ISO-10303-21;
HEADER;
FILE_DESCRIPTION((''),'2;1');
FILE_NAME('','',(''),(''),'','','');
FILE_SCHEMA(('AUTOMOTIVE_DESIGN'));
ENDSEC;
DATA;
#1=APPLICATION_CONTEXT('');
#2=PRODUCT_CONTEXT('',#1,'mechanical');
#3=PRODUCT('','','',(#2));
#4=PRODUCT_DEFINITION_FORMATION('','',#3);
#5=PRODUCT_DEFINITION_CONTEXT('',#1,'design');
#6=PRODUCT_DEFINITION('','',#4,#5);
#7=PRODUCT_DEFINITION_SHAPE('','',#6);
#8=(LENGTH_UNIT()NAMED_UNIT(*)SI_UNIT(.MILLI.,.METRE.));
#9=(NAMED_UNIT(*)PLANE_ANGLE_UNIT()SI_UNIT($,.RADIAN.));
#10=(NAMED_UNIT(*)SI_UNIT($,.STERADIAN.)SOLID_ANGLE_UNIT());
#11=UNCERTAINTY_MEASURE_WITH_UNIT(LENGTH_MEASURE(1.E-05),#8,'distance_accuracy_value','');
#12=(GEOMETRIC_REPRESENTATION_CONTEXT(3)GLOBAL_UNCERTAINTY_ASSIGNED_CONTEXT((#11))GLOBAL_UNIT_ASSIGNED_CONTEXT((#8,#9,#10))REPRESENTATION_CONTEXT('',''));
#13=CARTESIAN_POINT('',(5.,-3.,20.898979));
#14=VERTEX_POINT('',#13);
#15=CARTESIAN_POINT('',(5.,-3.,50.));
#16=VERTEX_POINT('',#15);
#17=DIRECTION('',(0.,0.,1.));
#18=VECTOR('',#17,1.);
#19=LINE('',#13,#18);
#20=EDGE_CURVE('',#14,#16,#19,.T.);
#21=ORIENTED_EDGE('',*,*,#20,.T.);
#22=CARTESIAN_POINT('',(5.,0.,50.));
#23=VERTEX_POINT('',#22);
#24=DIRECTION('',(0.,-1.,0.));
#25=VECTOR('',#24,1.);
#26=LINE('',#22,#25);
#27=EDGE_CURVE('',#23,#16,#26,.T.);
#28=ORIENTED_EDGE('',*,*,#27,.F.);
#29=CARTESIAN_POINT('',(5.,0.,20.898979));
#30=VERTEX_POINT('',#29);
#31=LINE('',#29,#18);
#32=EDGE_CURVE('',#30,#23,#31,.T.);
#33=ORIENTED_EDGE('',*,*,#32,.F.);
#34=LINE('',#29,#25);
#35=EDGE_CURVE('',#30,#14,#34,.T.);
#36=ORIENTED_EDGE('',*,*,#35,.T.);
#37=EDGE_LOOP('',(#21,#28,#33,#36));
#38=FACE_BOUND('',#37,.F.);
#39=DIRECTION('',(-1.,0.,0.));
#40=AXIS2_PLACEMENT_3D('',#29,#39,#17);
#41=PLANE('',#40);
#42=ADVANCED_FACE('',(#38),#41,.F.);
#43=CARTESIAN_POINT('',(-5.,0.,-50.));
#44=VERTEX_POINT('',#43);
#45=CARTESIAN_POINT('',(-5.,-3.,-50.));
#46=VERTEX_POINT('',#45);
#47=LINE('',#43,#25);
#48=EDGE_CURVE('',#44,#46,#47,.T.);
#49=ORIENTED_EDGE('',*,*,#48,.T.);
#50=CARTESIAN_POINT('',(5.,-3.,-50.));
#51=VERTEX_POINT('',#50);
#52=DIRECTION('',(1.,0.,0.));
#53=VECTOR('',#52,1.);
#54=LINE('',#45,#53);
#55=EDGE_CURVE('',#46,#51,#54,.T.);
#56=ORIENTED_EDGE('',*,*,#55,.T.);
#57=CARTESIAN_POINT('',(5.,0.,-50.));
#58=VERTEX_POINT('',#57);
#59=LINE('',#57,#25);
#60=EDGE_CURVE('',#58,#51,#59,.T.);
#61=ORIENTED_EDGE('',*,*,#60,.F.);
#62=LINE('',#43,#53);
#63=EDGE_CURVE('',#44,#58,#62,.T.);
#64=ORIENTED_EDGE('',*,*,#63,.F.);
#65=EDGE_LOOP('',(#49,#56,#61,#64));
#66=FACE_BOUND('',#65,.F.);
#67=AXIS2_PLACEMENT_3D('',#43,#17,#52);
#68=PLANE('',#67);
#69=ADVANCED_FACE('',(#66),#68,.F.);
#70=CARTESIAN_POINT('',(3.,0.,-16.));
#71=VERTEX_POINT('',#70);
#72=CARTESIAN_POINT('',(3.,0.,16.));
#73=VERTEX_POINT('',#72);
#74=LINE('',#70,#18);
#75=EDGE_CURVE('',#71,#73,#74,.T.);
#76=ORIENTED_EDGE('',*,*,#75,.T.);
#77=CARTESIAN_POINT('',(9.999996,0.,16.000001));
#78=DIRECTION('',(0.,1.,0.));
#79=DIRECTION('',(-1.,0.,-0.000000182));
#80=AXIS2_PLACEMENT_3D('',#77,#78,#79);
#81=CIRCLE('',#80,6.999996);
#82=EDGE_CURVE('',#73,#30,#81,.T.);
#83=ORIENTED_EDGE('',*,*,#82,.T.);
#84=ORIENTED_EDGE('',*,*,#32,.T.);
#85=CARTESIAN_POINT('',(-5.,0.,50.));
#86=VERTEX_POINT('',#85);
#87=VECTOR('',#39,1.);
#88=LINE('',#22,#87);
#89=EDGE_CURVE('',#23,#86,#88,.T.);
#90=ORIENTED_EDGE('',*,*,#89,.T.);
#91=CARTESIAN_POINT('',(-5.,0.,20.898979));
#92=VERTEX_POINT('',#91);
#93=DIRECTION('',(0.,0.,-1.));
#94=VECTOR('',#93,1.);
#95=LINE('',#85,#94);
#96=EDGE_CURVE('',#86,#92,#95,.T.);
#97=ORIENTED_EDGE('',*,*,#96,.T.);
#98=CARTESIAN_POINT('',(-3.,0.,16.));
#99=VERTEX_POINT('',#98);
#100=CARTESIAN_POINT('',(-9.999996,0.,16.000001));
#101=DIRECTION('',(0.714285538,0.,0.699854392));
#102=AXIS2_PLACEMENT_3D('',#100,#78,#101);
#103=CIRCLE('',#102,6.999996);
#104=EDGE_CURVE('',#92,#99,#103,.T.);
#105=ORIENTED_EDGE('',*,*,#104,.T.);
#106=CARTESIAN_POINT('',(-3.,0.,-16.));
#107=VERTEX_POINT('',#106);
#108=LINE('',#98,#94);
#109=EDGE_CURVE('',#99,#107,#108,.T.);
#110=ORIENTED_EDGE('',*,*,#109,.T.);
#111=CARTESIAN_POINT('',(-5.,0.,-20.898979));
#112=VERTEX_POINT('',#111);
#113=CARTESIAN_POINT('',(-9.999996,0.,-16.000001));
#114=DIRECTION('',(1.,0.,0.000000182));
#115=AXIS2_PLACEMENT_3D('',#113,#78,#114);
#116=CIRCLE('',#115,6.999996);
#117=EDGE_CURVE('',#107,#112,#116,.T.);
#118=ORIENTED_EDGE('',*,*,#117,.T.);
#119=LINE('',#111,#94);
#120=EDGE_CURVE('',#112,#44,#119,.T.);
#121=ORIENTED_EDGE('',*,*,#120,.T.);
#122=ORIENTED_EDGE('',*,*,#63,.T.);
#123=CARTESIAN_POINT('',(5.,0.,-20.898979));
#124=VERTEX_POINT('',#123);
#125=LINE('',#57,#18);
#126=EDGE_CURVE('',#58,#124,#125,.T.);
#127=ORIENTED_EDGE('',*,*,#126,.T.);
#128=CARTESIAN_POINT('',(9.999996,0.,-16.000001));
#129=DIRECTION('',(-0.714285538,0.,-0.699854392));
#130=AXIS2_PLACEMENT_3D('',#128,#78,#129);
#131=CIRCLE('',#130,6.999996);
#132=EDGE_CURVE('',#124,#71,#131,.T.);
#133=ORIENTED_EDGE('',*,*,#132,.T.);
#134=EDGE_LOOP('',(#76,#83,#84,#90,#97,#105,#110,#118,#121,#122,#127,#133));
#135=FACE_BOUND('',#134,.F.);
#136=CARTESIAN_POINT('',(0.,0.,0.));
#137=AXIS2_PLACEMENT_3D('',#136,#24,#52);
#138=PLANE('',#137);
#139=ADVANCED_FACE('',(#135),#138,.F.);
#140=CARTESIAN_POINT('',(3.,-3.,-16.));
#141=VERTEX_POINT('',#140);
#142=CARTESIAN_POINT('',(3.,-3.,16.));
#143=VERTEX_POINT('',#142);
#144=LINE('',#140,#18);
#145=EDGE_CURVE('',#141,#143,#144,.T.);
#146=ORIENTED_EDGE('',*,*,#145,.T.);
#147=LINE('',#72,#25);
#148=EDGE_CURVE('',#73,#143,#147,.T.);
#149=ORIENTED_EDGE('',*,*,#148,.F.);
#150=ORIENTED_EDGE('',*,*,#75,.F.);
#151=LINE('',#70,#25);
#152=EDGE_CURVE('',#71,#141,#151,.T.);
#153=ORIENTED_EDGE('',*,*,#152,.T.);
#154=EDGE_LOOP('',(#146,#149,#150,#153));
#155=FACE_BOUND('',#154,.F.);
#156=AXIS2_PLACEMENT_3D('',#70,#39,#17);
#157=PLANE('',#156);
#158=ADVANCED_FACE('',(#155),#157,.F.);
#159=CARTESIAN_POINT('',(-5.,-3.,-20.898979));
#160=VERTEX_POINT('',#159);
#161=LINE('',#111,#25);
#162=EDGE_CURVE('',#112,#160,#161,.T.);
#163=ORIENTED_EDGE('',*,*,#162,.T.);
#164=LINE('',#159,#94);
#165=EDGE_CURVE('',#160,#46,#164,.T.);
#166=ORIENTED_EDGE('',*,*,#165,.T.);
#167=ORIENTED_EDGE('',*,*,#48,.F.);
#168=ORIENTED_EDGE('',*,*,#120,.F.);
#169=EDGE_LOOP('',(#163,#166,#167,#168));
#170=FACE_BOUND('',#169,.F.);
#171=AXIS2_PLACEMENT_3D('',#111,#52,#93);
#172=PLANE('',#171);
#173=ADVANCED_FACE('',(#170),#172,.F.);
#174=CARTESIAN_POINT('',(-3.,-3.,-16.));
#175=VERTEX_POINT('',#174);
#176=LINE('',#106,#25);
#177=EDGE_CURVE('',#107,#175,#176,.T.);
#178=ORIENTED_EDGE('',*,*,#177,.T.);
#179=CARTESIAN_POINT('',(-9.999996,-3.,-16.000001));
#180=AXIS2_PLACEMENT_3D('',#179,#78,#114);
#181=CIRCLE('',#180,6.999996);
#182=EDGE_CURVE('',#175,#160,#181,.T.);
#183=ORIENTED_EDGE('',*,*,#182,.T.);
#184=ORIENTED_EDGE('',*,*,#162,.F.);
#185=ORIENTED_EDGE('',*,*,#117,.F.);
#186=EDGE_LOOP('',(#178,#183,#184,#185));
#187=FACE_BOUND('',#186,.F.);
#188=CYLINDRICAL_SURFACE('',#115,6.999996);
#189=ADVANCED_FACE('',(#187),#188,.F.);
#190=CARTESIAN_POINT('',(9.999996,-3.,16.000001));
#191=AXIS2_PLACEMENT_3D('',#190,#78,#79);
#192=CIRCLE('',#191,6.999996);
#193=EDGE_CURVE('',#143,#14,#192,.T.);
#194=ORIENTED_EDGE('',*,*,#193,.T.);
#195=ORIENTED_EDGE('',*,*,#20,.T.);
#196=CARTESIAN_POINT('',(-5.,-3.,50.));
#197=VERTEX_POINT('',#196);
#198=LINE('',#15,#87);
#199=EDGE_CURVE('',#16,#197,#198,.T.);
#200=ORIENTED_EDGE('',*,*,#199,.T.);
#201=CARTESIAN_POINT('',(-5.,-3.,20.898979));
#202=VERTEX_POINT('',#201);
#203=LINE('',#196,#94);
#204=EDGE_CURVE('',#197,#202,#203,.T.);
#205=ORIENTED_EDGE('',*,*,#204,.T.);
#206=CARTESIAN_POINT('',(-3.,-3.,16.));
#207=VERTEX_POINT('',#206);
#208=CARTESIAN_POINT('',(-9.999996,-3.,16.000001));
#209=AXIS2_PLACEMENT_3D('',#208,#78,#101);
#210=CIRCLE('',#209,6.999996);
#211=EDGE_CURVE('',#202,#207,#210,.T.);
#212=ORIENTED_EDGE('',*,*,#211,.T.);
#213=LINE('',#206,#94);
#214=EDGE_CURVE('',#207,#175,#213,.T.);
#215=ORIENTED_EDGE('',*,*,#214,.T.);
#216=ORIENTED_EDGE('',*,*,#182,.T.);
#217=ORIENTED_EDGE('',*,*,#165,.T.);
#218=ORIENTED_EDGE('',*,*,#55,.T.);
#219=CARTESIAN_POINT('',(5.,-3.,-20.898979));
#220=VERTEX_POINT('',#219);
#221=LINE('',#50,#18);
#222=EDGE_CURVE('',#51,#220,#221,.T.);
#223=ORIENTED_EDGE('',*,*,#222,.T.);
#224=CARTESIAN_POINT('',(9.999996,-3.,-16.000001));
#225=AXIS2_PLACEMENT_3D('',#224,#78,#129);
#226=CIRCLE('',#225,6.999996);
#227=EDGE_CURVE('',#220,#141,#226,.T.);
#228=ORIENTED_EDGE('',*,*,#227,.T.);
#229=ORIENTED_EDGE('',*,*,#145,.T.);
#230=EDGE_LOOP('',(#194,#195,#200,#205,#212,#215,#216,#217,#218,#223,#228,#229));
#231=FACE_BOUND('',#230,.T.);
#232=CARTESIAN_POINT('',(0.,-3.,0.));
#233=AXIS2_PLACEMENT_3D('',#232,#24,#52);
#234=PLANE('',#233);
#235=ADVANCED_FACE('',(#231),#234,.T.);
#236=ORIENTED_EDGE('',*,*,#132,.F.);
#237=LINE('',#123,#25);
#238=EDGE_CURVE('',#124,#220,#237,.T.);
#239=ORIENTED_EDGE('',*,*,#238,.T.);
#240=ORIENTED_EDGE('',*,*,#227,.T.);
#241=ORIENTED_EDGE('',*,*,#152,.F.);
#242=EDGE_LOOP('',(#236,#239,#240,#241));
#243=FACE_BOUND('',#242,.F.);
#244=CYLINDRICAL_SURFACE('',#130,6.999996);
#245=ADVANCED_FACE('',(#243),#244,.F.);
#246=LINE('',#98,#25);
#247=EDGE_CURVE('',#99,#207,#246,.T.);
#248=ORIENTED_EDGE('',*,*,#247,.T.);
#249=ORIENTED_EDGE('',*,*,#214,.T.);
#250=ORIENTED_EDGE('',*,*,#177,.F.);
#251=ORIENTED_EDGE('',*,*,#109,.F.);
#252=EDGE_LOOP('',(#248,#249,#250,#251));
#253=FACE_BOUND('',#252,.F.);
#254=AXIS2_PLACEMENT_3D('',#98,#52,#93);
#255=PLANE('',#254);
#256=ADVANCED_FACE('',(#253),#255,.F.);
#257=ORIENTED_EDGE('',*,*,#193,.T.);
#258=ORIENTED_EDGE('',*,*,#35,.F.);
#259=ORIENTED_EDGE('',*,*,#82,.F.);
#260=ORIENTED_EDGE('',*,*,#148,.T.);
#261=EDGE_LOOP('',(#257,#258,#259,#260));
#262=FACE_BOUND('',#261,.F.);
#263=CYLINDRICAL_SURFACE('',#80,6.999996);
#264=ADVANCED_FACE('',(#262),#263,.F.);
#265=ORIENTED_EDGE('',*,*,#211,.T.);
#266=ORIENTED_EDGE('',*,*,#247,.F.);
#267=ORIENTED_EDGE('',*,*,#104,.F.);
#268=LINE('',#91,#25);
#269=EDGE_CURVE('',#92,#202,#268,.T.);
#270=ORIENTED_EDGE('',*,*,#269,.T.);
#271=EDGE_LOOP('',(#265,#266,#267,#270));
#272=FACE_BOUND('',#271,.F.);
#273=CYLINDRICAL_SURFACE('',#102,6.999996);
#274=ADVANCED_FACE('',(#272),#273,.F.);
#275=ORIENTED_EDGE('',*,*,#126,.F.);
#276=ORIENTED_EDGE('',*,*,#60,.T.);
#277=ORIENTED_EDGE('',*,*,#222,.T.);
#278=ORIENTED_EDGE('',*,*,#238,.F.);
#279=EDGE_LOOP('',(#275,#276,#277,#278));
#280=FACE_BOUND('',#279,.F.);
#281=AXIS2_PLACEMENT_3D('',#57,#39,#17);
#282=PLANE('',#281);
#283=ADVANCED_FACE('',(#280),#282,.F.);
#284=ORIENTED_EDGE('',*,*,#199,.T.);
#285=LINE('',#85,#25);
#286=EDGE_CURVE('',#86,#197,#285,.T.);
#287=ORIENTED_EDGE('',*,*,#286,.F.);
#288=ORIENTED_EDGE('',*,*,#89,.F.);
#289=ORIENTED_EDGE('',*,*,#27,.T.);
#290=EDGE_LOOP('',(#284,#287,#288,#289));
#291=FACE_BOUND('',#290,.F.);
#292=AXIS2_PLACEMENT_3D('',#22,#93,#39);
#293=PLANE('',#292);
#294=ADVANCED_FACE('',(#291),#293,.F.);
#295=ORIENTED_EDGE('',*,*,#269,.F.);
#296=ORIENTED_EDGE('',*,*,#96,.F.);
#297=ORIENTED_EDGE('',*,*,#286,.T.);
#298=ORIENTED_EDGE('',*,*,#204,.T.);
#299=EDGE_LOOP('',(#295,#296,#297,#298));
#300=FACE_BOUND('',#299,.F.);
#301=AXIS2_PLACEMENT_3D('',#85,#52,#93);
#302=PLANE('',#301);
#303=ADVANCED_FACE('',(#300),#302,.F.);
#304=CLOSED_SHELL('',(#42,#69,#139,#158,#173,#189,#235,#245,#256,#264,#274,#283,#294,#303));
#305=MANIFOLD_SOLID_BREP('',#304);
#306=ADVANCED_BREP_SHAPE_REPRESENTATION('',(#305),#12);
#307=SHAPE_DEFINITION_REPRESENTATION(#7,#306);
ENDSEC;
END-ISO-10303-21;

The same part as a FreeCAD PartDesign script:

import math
import FreeCAD as App
import Part
import Sketcher
from FreeCAD import Vector
Q = App.Units.Quantity

doc = App.newDocument("Part")
params = doc.addObject("Spreadsheet::Sheet", "Params")
for row, (alias, value) in enumerate([
    ("sketch1_width", "10 mm"),
    ("sketch1_height", "32 mm"),
    ("pad1_length", "3 mm"),
], start=1):
    params.set(f"A{row}", alias)
    params.set(f"B{row}", "=" + value)
    params.setAlias(f"B{row}", alias)

body = doc.addObject("PartDesign::Body", "Body")

# Sketch on XZ plane
sketch1 = body.newObject("Sketcher::SketchObject", "Sketch")
sketch1.AttachmentSupport = (doc.getObject("XZ_Plane"), [""])
sketch1.MapMode = "FlatFace"
sketch1.addGeometry(Part.LineSegment(Vector(3, -16, 0), Vector(3, 16, 0)), False)
sketch1.addGeometry(Part.ArcOfCircle(Part.Circle(Vector(10, 16, 0), Vector(0, 0, 1), 7), math.radians(136), math.radians(180)), False)
sketch1.addGeometry(Part.LineSegment(Vector(5, 21, 0), Vector(5, 50, 0)), False)
sketch1.addGeometry(Part.LineSegment(Vector(5, 50, 0), Vector(-5, 50, 0)), False)
sketch1.addGeometry(Part.LineSegment(Vector(-5, 50, 0), Vector(-5, 21, 0)), False)
sketch1.addGeometry(Part.ArcOfCircle(Part.Circle(Vector(-10, 16, 0), Vector(0, 0, 1), 7), math.radians(0), math.radians(44)), False)
sketch1.addGeometry(Part.LineSegment(Vector(-3, 16, 0), Vector(-3, -16, 0)), False)
sketch1.addGeometry(Part.ArcOfCircle(Part.Circle(Vector(-10, -16, 0), Vector(0, 0, 1), 7), math.radians(-44), math.radians(0)), False)
sketch1.addGeometry(Part.LineSegment(Vector(-5, -21, 0), Vector(-5, -50, 0)), False)
sketch1.addGeometry(Part.LineSegment(Vector(-5, -50, 0), Vector(5, -50, 0)), False)
sketch1.addGeometry(Part.LineSegment(Vector(5, -50, 0), Vector(5, -21, 0)), False)
sketch1.addGeometry(Part.ArcOfCircle(Part.Circle(Vector(10, -16, 0), Vector(0, 0, 1), 7), math.radians(180), math.radians(224)), False)
sketch1.addConstraint(Sketcher.Constraint("Tangent", 0, 2, 1, 2))
sketch1.addConstraint(Sketcher.Constraint("Coincident", 1, 1, 2, 1))
sketch1.addConstraint(Sketcher.Constraint("Coincident", 2, 2, 3, 1))
sketch1.addConstraint(Sketcher.Constraint("Coincident", 3, 2, 4, 1))
sketch1.addConstraint(Sketcher.Constraint("Coincident", 4, 2, 5, 2))
sketch1.addConstraint(Sketcher.Constraint("Tangent", 5, 1, 6, 1))
sketch1.addConstraint(Sketcher.Constraint("Tangent", 6, 2, 7, 2))
sketch1.addConstraint(Sketcher.Constraint("Coincident", 7, 1, 8, 1))
sketch1.addConstraint(Sketcher.Constraint("Coincident", 8, 2, 9, 1))
sketch1.addConstraint(Sketcher.Constraint("Coincident", 9, 2, 10, 1))
sketch1.addConstraint(Sketcher.Constraint("Coincident", 10, 2, 11, 2))
sketch1.addConstraint(Sketcher.Constraint("Tangent", 11, 1, 0, 1))
sketch1.addConstraint(Sketcher.Constraint("Vertical", 0))
sketch1.addConstraint(Sketcher.Constraint("Vertical", 2))
sketch1.addConstraint(Sketcher.Constraint("Horizontal", 3))
sketch1.addConstraint(Sketcher.Constraint("Vertical", 4))
sketch1.addConstraint(Sketcher.Constraint("Vertical", 6))
sketch1.addConstraint(Sketcher.Constraint("Vertical", 8))
sketch1.addConstraint(Sketcher.Constraint("Horizontal", 9))
sketch1.addConstraint(Sketcher.Constraint("Vertical", 10))
sketch1.addConstraint(Sketcher.Constraint("Equal", 1, 5))
sketch1.addConstraint(Sketcher.Constraint("Equal", 5, 7))
sketch1.addConstraint(Sketcher.Constraint("Equal", 7, 11))
sketch1.addConstraint(Sketcher.Constraint("Symmetric", 1, 3, 7, 3, -1, 1))
sketch1.addConstraint(Sketcher.Constraint("Symmetric", 2, 2, 8, 2, -1, 1))
sketch1.addConstraint(Sketcher.Constraint("Symmetric", 4, 2, 10, 2, -1, 1))
sketch1.addConstraint(Sketcher.Constraint("Symmetric", 1, 1, 4, 2, -2))
sketch1.addConstraint(Sketcher.Constraint("DistanceX", 3, 2, 3, 1, Q("10 mm")))
sketch1.addConstraint(Sketcher.Constraint("DistanceY", 0, 1, 0, 2, Q("32 mm")))
sketch1.addConstraint(Sketcher.Constraint("DistanceX", -1, 1, 0, 2, Q("3 mm")))
sketch1.addConstraint(Sketcher.Constraint("DistanceY", -1, 1, 2, 2, Q("50 mm")))
sketch1.addConstraint(Sketcher.Constraint("Radius", 1, Q("6.999996 mm")))
sketch1.setExpression("Constraints[27]", "Params.sketch1_width")
sketch1.setExpression("Constraints[28]", "Params.sketch1_height")
pad1 = body.newObject("PartDesign::Pad", "Pad")
pad1.Profile = sketch1
pad1.setExpression("Length", "Params.pad1_length")

doc.recompute()
